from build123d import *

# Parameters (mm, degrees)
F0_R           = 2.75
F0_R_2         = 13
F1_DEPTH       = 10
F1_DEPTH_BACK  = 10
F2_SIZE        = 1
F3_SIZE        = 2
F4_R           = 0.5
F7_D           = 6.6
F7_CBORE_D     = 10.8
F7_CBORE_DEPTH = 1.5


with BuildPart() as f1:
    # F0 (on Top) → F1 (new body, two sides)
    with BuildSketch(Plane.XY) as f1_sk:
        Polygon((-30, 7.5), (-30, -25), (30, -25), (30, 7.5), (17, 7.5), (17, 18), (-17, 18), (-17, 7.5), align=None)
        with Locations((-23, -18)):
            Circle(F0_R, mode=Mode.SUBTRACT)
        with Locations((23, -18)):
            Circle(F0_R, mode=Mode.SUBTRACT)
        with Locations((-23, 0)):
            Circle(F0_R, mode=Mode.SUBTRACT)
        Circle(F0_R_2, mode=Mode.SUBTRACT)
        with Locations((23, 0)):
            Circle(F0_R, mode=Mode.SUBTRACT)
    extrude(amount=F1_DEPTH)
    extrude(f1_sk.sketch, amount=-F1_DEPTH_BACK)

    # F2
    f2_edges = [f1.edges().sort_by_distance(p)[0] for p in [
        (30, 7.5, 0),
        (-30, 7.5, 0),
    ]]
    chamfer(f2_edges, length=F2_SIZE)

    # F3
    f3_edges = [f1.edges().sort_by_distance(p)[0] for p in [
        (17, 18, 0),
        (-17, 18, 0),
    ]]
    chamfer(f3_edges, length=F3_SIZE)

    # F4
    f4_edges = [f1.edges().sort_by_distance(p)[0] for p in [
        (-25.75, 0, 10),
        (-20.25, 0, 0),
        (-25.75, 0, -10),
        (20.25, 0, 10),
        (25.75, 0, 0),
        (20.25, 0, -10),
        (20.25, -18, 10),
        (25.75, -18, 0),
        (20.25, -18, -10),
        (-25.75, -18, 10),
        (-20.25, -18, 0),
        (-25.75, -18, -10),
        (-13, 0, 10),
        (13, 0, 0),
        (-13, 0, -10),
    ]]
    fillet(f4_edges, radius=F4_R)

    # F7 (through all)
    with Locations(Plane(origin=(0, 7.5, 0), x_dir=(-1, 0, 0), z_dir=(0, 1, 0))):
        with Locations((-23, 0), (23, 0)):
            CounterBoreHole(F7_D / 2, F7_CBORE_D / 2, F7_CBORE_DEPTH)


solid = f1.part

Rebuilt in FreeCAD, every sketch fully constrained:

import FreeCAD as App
import Part
import Sketcher
from FreeCAD import Vector


def edges_at(feature, points):
    """Names of the edges that pass closest to the given points."""
    edges = feature.Shape.Edges
    near = lambda p: min(range(len(edges)), key=lambda i: edges[i].distToShape(Part.Vertex(*p))[0])
    return sorted({f"Edge{near(p) + 1}" for p in points})

doc = App.newDocument("Part")
params = doc.addObject("Spreadsheet::Sheet", "Params")
for row, (alias, value) in enumerate([
    ("sketch1_diameter", "26 mm"),
    ("sketch1_diameter2", "5.5 mm"),
    ("sketch1_width", "60 mm"),
    ("sketch1_width2", "13 mm"),
    ("sketch1_height", "32.5 mm"),
    ("pad1_length", "10 mm"),
    ("pad1_length2", "10 mm"),
    ("chamfer_size", "1 mm"),
    ("chamfer2_size", "2 mm"),
    ("fillet_radius", "0.5 mm"),
    ("sketch2_diameter", "6.6 mm"),
    ("hole_diameter", "6.6 mm"),
    ("hole_cbore_diameter", "10.8 mm"),
    ("hole_cbore_depth", "1.5 mm"),
], start=1):
    params.set(f"A{row}", alias)
    params.set(f"B{row}", "=" + value)
    params.setAlias(f"B{row}", alias)

body = doc.addObject("PartDesign::Body", "Body")

# Sketch on XY plane
sketch1 = doc.addObject("Sketcher::SketchObject", "Sketch")
body.addObject(sketch1)
sketch1.AttachmentSupport = (doc.XY_Plane, [""])
sketch1.MapMode = "FlatFace"
sketch1.addGeometry([
    Part.LineSegment(Vector(-30, 7.5, 0), Vector(-30, -25, 0)),  # 0
    Part.LineSegment(Vector(-30, -25, 0), Vector(30, -25, 0)),  # 1
    Part.LineSegment(Vector(30, -25, 0), Vector(30, 7.5, 0)),  # 2
    Part.LineSegment(Vector(30, 7.5, 0), Vector(17, 7.5, 0)),  # 3
    Part.LineSegment(Vector(17, 7.5, 0), Vector(17, 18, 0)),  # 4
    Part.LineSegment(Vector(17, 18, 0), Vector(-17, 18, 0)),  # 5
    Part.LineSegment(Vector(-17, 18, 0), Vector(-17, 7.5, 0)),  # 6
    Part.LineSegment(Vector(-17, 7.5, 0), Vector(-30, 7.5, 0)),  # 7
    Part.Circle(Vector(-23, -18, 0), Vector(0, 0, 1), 2.8),  # 8
    Part.Circle(Vector(23, -18, 0), Vector(0, 0, 1), 2.8),  # 9
    Part.Circle(Vector(-23, 0, 0), Vector(0, 0, 1), 2.8),  # 10
    Part.Circle(Vector(0, 0, 0), Vector(0, 0, 1), 13),  # 11
    Part.Circle(Vector(23, 0, 0), Vector(0, 0, 1), 2.8),  # 12
], False)
sketch1.addConstraint([
    Sketcher.Constraint("Coincident", 0, 2, 1, 1),
    Sketcher.Constraint("Coincident", 1, 2, 2, 1),
    Sketcher.Constraint("Coincident", 2, 2, 3, 1),
    Sketcher.Constraint("Coincident", 3, 2, 4, 1),
    Sketcher.Constraint("Coincident", 4, 2, 5, 1),
    Sketcher.Constraint("Coincident", 5, 2, 6, 1),
    Sketcher.Constraint("Coincident", 6, 2, 7, 1),
    Sketcher.Constraint("Coincident", 7, 2, 0, 1),
    Sketcher.Constraint("Vertical", 0),
    Sketcher.Constraint("Horizontal", 1),
    Sketcher.Constraint("Vertical", 2),
    Sketcher.Constraint("Horizontal", 3),
    Sketcher.Constraint("Vertical", 4),
    Sketcher.Constraint("Horizontal", 5),
    Sketcher.Constraint("Vertical", 6),
    Sketcher.Constraint("Horizontal", 7),
    Sketcher.Constraint("Coincident", 11, 3, -1, 1),
    Sketcher.Constraint("Equal", 8, 9),
    Sketcher.Constraint("Equal", 9, 10),
    Sketcher.Constraint("Equal", 10, 12),
    Sketcher.Constraint("Symmetric", 10, 3, 12, 3, -1, 1),
    Sketcher.Constraint("Symmetric", 8, 3, 9, 3, -2),
    Sketcher.Constraint("Symmetric", 3, 2, 6, 2, -2),
    Sketcher.Constraint("PointOnObject", 10, 3, -1),
    Sketcher.Constraint("Vertical", 8, 3, 10, 3),
    Sketcher.Constraint("Equal", 3, 7),
    Sketcher.Constraint("Diameter", 11, 26.0),
    Sketcher.Constraint("Diameter", 8, 5.5),
    Sketcher.Constraint("DistanceX", 1, 1, 1, 2, 60.0),
    Sketcher.Constraint("DistanceX", 3, 2, 3, 1, 13.0),
    Sketcher.Constraint("DistanceY", 0, 2, 0, 1, 32.5),
    Sketcher.Constraint("DistanceY", 4, 1, 4, 2, 10.5),
    Sketcher.Constraint("DistanceX", 8, 3, -1, 1, 23.0),
    Sketcher.Constraint("DistanceY", 8, 3, -1, 1, 18.0),
    Sketcher.Constraint("DistanceY", 0, 2, -1, 1, 25.0),
])
sketch1.setExpression("Constraints[26]", "Params.sketch1_diameter")
sketch1.setExpression("Constraints[27]", "Params.sketch1_diameter2")
sketch1.setExpression("Constraints[28]", "Params.sketch1_width")
sketch1.setExpression("Constraints[29]", "Params.sketch1_width2")
sketch1.setExpression("Constraints[30]", "Params.sketch1_height")
pad1 = doc.addObject("PartDesign::Pad", "Pad")
body.addObject(pad1)
pad1.Profile = sketch1
pad1.Type = "TwoLengths"
pad1.setExpression("Length", "Params.pad1_length")
pad1.setExpression("Length2", "Params.pad1_length2")
doc.recompute()

chamfer = doc.addObject("PartDesign::Chamfer", "Chamfer")
body.addObject(chamfer)
chamfer.Base = (pad1, edges_at(pad1, [(30, 7.5, 0), (-30, 7.5, 0)]))
chamfer.setExpression("Size", "Params.chamfer_size")
doc.recompute()

chamfer2 = doc.addObject("PartDesign::Chamfer", "Chamfer001")
body.addObject(chamfer2)
chamfer2.Base = (chamfer, edges_at(chamfer, [(17, 18, 0), (-17, 18, 0)]))
chamfer2.setExpression("Size", "Params.chamfer2_size")
doc.recompute()

fillet = doc.addObject("PartDesign::Fillet", "Fillet")
body.addObject(fillet)
fillet.Base = (chamfer2, edges_at(chamfer2, [
    (-25.75, 0, 10),
    (-20.25, 0, -5),
    (-25.75, 0, -10),
    (20.25, 0, 10),
    (25.75, 0, -5),
    (20.25, 0, -10),
    (20.25, -18, 10),
    (25.75, -18, -5),
    (20.25, -18, -10),
    (-25.75, -18, 10),
    (-20.25, -18, -5),
    (-25.75, -18, -10),
    (-13, 0, 10),
    (13, 0, -5),
    (-13, 0, -10),
]))
fillet.setExpression("Radius", "Params.fillet_radius")

# Sketch on XZ plane
sketch2 = doc.addObject("Sketcher::SketchObject", "Sketch001")
body.addObject(sketch2)
sketch2.AttachmentSupport = (doc.XZ_Plane, [""])
sketch2.MapMode = "FlatFace"
sketch2.AttachmentOffset = App.Placement(Vector(0, 0, -7.5), App.Rotation())
sketch2.addGeometry([
    Part.Circle(Vector(23, 0, 0), Vector(0, 0, 1), 3.3),
    Part.Circle(Vector(-23, 0, 0), Vector(0, 0, 1), 3.3),
], False)
sketch2.addConstraint([
    Sketcher.Constraint("Equal", 0, 1),
    Sketcher.Constraint("Symmetric", 0, 3, 1, 3, -1, 1),
    Sketcher.Constraint("PointOnObject", 0, 3, -1),
    Sketcher.Constraint("Diameter", 0, 6.6),
    Sketcher.Constraint("DistanceX", -1, 1, 0, 3, 23.0),
])
sketch2.setExpression("Constraints[3]", "Params.sketch2_diameter")
doc.recompute()
hole = doc.addObject("PartDesign::Hole", "Hole")
body.addObject(hole)
hole.Profile = sketch2
hole.ThreadType = "None"
hole.setExpression("Diameter", "Params.hole_diameter")
hole.DepthType = "ThroughAll"
hole.HoleCutType = "Counterbore"
hole.setExpression("HoleCutDiameter", "Params.hole_cbore_diameter")
hole.setExpression("HoleCutDepth", "Params.hole_cbore_depth")
hole.Reversed = True

doc.recompute()
